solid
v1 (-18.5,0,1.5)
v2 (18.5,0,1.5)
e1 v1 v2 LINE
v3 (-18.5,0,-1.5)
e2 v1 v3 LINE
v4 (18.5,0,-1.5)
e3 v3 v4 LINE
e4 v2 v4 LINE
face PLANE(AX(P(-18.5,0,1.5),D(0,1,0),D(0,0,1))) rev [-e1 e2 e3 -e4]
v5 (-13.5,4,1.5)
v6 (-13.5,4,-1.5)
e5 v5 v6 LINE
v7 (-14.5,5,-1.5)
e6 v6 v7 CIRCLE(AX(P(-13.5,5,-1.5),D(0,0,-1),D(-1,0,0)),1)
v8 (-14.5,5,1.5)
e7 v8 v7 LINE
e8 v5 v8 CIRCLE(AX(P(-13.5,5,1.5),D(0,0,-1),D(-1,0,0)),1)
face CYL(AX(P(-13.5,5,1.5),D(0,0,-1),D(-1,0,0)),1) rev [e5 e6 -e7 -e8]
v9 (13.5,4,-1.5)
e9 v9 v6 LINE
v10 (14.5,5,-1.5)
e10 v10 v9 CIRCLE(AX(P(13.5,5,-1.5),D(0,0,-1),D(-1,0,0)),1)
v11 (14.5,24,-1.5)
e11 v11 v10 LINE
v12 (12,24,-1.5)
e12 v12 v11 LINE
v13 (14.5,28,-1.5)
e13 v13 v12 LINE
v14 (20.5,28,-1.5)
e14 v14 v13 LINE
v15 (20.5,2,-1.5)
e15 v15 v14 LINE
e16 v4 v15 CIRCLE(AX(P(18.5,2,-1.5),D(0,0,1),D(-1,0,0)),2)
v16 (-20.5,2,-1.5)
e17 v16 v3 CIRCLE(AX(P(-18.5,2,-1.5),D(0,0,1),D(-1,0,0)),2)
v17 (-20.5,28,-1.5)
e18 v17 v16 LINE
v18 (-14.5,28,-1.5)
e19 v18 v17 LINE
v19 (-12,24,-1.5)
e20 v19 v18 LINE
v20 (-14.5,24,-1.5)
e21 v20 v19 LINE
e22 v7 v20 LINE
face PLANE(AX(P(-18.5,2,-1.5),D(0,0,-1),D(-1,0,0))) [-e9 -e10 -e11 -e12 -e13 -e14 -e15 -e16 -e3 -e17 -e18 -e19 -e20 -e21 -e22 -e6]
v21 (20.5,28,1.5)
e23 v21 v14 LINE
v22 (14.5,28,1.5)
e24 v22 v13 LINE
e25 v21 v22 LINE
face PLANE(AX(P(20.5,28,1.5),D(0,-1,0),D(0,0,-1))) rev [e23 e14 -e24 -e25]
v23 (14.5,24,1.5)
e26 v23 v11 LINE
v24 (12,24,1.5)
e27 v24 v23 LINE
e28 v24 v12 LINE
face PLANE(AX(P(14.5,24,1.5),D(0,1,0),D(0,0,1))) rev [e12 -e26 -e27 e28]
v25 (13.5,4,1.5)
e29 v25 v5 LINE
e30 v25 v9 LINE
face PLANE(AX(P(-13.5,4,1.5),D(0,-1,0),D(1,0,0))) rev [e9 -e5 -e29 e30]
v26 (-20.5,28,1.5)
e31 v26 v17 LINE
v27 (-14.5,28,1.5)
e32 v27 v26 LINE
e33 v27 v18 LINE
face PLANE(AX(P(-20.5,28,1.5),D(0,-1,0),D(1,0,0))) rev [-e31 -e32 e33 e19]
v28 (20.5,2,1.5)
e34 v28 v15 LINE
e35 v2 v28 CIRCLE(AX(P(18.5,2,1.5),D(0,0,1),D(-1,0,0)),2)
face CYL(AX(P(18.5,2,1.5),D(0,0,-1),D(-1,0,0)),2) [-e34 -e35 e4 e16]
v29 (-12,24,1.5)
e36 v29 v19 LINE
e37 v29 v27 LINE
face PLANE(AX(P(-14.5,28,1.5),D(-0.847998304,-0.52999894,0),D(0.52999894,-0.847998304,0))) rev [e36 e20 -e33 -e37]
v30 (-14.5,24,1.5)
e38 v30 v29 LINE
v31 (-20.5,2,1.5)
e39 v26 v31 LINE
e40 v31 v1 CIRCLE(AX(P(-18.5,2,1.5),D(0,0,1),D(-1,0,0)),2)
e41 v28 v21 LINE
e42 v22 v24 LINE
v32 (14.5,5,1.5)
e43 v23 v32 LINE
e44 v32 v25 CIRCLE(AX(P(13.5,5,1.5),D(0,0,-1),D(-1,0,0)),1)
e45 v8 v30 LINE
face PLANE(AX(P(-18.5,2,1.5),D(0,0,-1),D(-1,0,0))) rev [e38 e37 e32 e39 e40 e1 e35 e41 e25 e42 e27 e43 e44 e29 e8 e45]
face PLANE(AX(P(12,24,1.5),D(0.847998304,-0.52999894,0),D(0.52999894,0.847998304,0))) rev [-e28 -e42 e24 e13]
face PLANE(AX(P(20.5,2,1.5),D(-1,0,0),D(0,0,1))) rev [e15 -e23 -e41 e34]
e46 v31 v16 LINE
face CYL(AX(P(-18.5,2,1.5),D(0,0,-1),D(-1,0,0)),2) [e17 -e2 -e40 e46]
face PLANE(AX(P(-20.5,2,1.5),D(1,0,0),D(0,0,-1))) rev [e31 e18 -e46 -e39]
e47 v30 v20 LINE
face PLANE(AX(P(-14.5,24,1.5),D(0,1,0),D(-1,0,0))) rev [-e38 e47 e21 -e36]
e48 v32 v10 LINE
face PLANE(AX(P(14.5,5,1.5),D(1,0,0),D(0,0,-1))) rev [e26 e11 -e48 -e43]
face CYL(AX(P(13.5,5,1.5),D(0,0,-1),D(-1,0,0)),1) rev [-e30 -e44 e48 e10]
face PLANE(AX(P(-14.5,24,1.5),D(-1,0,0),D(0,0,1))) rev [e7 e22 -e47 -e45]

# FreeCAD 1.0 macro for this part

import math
import FreeCAD as App
import Part
import Sketcher
Q = App.Units.Quantity

doc = App.newDocument("Part")
body = doc.addObject("PartDesign::Body", "Body")

# Sketch on XY plane
sketch1 = doc.addObject("Sketcher::SketchObject", "Sketch")
body.addObject(sketch1)
sketch1.AttachmentSupport = (doc.XY_Plane, [""])
sketch1.MapMode = "FlatFace"
sketch1.addGeometry([
    Part.LineSegment(App.Vector(13.5, 4, 0), App.Vector(-13.5, 4, 0)),  # 0
    Part.ArcOfCircle(Part.Circle(App.Vector(-13.5, 5, 0), App.Vector(0, 0, 1), 1), math.radians(-180), math.radians(-90)),  # 1
    Part.LineSegment(App.Vector(-14.5, 5, 0), App.Vector(-14.5, 24, 0)),  # 2
    Part.LineSegment(App.Vector(-14.5, 24, 0), App.Vector(-12, 24, 0)),  # 3
    Part.LineSegment(App.Vector(-12, 24, 0), App.Vector(-14.5, 28, 0)),  # 4
    Part.LineSegment(App.Vector(-14.5, 28, 0), App.Vector(-20.5, 28, 0)),  # 5
    Part.LineSegment(App.Vector(-20.5, 28, 0), App.Vector(-20.5, 2, 0)),  # 6
    Part.ArcOfCircle(Part.Circle(App.Vector(-18.5, 2, 0), App.Vector(0, 0, 1), 2), math.radians(-180), math.radians(-90)),  # 7
    Part.LineSegment(App.Vector(-18.5, 0, 0), App.Vector(18.5, 0, 0)),  # 8
    Part.ArcOfCircle(Part.Circle(App.Vector(18.5, 2, 0), App.Vector(0, 0, 1), 2), math.radians(-90), math.radians(0)),  # 9
    Part.LineSegment(App.Vector(20.5, 2, 0), App.Vector(20.5, 28, 0)),  # 10
    Part.LineSegment(App.Vector(20.5, 28, 0), App.Vector(14.5, 28, 0)),  # 11
    Part.LineSegment(App.Vector(14.5, 28, 0), App.Vector(12, 24, 0)),  # 12
    Part.LineSegment(App.Vector(12, 24, 0), App.Vector(14.5, 24, 0)),  # 13
    Part.LineSegment(App.Vector(14.5, 24, 0), App.Vector(14.5, 5, 0)),  # 14
    Part.ArcOfCircle(Part.Circle(App.Vector(13.5, 5, 0), App.Vector(0, 0, 1), 1), math.radians(-90), math.radians(0)),  # 15
], False)
sketch1.addConstraint([
    Sketcher.Constraint("Tangent", 0, 2, 1, 2),
    Sketcher.Constraint("Tangent", 1, 1, 2, 1),
    Sketcher.Constraint("Coincident", 2, 2, 3, 1),
    Sketcher.Constraint("Coincident", 3, 2, 4, 1),
    Sketcher.Constraint("Coincident", 4, 2, 5, 1),
    Sketcher.Constraint("Coincident", 5, 2, 6, 1),
    Sketcher.Constraint("Tangent", 6, 2, 7, 1),
    Sketcher.Constraint("Tangent", 7, 2, 8, 1),
    Sketcher.Constraint("Tangent", 8, 2, 9, 1),
    Sketcher.Constraint("Tangent", 9, 2, 10, 1),
    Sketcher.Constraint("Coincident", 10, 2, 11, 1),
    Sketcher.Constraint("Coincident", 11, 2, 12, 1),
    Sketcher.Constraint("Coincident", 12, 2, 13, 1),
    Sketcher.Constraint("Coincident", 13, 2, 14, 1),
    Sketcher.Constraint("Tangent", 14, 2, 15, 2),
    Sketcher.Constraint("Tangent", 15, 1, 0, 1),
    Sketcher.Constraint("Horizontal", 0),
    Sketcher.Constraint("Vertical", 2),
    Sketcher.Constraint("Horizontal", 3),
    Sketcher.Constraint("Horizontal", 5),
    Sketcher.Constraint("Vertical", 6),
    Sketcher.Constraint("Horizontal", 8),
    Sketcher.Constraint("Vertical", 10),
    Sketcher.Constraint("Horizontal", 11),
    Sketcher.Constraint("Horizontal", 13),
    Sketcher.Constraint("Vertical", 14),
    Sketcher.Constraint("Equal", 7, 9),
    Sketcher.Constraint("Equal", 1, 15),
    Sketcher.Constraint("Symmetric", 7, 2, 8, 2, -1, 1),
    Sketcher.Constraint("Symmetric", 4, 2, 11, 2, -2),
    Sketcher.Constraint("Symmetric", 3, 2, 12, 2, -2),
    Sketcher.Constraint("Vertical", 2, 2, 4, 2),
    Sketcher.Constraint("Vertical", 11, 2, 13, 2),
    Sketcher.Constraint("Radius", 1, Q("1 mm")),
    Sketcher.Constraint("Radius", 7, Q("2 mm")),
    Sketcher.Constraint("DistanceX", 0, 2, 0, 1, Q("27 mm")),
    Sketcher.Constraint("DistanceX", 5, 2, 5, 1, Q("6 mm")),
    Sketcher.Constraint("DistanceY", 2, 1, 2, 2, Q("19 mm")),
    Sketcher.Constraint("DistanceY", 6, 2, 6, 1, Q("26 mm")),
    Sketcher.Constraint("DistanceX", 3, 1, 3, 2, Q("2.5 mm")),
    Sketcher.Constraint("DistanceY", -1, 1, 1, 3, Q("5 mm")),
])
pad1 = doc.addObject("PartDesign::Pad", "Pad")
body.addObject(pad1)
pad1.Profile = sketch1
pad1.Length = 3
pad1.Midplane = True

doc.recompute()
